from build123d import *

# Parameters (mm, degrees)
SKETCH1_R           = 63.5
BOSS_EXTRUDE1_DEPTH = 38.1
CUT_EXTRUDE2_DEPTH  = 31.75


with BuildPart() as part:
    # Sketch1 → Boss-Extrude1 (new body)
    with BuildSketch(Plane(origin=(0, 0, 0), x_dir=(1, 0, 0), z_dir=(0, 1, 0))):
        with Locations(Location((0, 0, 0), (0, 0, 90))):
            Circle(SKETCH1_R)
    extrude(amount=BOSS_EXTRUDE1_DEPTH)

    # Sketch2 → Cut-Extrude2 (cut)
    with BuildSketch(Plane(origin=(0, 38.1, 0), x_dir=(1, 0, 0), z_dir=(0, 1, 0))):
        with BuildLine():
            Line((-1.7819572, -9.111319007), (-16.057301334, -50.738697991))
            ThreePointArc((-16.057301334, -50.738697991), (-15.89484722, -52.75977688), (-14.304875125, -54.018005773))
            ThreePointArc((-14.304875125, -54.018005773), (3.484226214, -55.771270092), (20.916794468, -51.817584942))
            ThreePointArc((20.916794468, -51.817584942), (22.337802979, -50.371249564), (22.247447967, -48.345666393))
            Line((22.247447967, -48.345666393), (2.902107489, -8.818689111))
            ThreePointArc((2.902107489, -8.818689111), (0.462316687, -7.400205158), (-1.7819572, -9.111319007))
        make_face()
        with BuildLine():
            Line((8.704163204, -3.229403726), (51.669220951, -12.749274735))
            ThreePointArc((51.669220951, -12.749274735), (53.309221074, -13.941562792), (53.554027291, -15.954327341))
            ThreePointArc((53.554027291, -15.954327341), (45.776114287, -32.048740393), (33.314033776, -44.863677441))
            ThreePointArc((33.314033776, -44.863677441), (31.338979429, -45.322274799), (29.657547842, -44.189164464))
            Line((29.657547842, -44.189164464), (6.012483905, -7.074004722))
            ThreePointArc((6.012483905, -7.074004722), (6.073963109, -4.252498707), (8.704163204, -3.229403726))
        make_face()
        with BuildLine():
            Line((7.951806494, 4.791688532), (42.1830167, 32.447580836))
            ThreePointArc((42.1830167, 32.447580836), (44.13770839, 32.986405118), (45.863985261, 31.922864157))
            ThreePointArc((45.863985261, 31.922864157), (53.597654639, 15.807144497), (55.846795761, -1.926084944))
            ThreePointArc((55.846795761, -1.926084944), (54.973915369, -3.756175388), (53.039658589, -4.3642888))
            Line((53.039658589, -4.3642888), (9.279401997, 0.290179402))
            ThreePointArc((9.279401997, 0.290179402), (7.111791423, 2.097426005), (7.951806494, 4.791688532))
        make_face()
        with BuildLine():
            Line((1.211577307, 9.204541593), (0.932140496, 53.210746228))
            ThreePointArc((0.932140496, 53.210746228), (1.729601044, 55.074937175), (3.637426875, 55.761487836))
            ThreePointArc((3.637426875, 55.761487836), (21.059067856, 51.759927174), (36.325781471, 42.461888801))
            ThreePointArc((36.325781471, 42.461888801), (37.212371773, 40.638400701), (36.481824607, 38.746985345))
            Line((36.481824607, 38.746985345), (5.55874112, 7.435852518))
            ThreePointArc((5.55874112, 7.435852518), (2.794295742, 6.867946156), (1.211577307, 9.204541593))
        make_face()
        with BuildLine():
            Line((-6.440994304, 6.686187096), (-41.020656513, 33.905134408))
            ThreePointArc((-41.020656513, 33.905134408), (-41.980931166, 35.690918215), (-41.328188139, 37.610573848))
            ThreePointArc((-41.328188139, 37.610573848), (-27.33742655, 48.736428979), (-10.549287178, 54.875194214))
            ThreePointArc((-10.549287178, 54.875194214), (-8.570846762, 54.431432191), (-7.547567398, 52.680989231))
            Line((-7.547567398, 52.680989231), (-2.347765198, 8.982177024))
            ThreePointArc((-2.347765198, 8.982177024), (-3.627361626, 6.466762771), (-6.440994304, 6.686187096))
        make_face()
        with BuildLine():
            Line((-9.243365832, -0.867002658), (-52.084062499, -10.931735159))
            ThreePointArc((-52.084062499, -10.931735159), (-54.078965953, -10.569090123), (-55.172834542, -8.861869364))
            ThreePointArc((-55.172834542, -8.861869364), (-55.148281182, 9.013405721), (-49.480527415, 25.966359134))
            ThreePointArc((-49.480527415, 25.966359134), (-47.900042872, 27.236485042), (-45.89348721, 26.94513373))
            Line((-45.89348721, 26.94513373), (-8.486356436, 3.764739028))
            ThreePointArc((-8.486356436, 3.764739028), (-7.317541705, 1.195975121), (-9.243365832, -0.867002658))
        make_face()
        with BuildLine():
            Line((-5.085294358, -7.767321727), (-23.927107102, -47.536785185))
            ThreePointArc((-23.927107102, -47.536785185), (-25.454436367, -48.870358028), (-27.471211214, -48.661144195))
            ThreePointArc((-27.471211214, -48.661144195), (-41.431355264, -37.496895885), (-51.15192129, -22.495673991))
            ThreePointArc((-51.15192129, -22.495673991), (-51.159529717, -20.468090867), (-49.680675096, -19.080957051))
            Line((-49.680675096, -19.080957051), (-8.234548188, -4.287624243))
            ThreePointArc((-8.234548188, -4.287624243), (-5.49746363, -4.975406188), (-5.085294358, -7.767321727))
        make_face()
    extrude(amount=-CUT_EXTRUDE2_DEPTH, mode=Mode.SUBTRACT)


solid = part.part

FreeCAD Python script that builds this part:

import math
import FreeCAD as App
import Part
import Sketcher
Q = App.Units.Quantity

doc = App.newDocument("Part")
body = doc.addObject("PartDesign::Body", "Body")

# Sketch on XZ plane
sketch1 = doc.addObject("Sketcher::SketchObject", "Sketch")
body.addObject(sketch1)
sketch1.AttachmentSupport = (doc.XZ_Plane, [""])
sketch1.MapMode = "FlatFace"
sketch1.addGeometry(Part.Circle(App.Vector(0, 0, 0), App.Vector(0, 0, 1), 63.5), False)
sketch1.addConstraint([
    Sketcher.Constraint("Coincident", 0, 3, -1, 1),
    Sketcher.Constraint("Diameter", 0, Q("5 in")),
])
pad1 = doc.addObject("PartDesign::Pad", "Pad")
body.addObject(pad1)
pad1.Profile = sketch1
pad1.Length = Q("1.5 in")
pad1.Reversed = True

# Sketch on XZ plane
sketch2 = doc.addObject("Sketcher::SketchObject", "Sketch001")
body.addObject(sketch2)
sketch2.AttachmentSupport = (doc.XZ_Plane, [""])
sketch2.MapMode = "FlatFace"
sketch2.AttachmentOffset = App.Placement(App.Vector(0, 0, -1.5 * 25.4), App.Rotation())
sketch2.addGeometry([
    Part.LineSegment(App.Vector(-1.781957, 9.111319, 0), App.Vector(-16.057301, 50.738698, 0)),  # 0
    Part.ArcOfCircle(Part.Circle(App.Vector(-13.654654, 51.562642, 0), App.Vector(0, 0, 1), 2.54), math.radians(104.832419), math.radians(198.928462)),  # 1
    Part.ArcOfCircle(Part.Circle(App.Vector(0, 0, 0), App.Vector(0, 0, 1), 55.88), math.radians(68.017938), math.radians(104.832418)),  # 2
    Part.ArcOfCircle(Part.Circle(App.Vector(19.966031, 49.46224, 0), App.Vector(0, 0, 1), 2.54), math.radians(-26.078106), math.radians(68.017938)),  # 3
    Part.LineSegment(App.Vector(22.247448, 48.345666, 0), App.Vector(2.902107, 8.818689, 0)),  # 4
    Part.ArcOfCircle(Part.Circle(App.Vector(0.620691, 9.935263, 0), App.Vector(0, 0, 1), 2.54), math.radians(-161.071538), math.radians(-26.078106)),  # 5
    Part.LineSegment(App.Vector(51.669221, 12.749275, 0), App.Vector(8.704163, 3.229404, 0)),  # 6
    Part.ArcOfCircle(Part.Circle(App.Vector(8.154696, 5.70926, 0), App.Vector(0, 0, 1), 2.54), math.radians(147.499891), math.radians(282.493323)),  # 7
    Part.LineSegment(App.Vector(6.012484, 7.074005, 0), App.Vector(29.657548, 44.189164, 0)),  # 8
    Part.ArcOfCircle(Part.Circle(App.Vector(31.79976, 42.824419, 0), App.Vector(0, 0, 1), 2.54), math.radians(53.403847), math.radians(147.499891)),  # 9
    Part.ArcOfCircle(Part.Circle(App.Vector(0, 0, 0), App.Vector(0, 0, 1), 55.88), math.radians(16.589367), math.radians(53.403847)),  # 10
    Part.ArcOfCircle(Part.Circle(App.Vector(51.119753, 15.229131, 0), App.Vector(0, 0, 1), 2.54), math.radians(-77.506677), math.radians(16.589367)),  # 11
    Part.LineSegment(App.Vector(42.183017, -32.447581, 0), App.Vector(7.951806, -4.791689, 0)),  # 12
    Part.ArcOfCircle(Part.Circle(App.Vector(9.548048, -2.815933, 0), App.Vector(0, 0, 1), 2.54), math.radians(96.071319), math.radians(231.064751)),  # 13
    Part.LineSegment(App.Vector(9.279402, -0.290179, 0), App.Vector(53.039659, 4.364289, 0)),  # 14
    Part.ArcOfCircle(Part.Circle(App.Vector(53.308305, 1.838536, 0), App.Vector(0, 0, 1), 2.54), math.radians(1.975276), math.radians(96.071319)),  # 15
    Part.ArcOfCircle(Part.Circle(App.Vector(0, 0, 0), App.Vector(0, 0, 1), 55.88), math.radians(-34.839205), math.radians(1.975276)),  # 16
    Part.ArcOfCircle(Part.Circle(App.Vector(43.779259, -30.471825, 0), App.Vector(0, 0, 1), 2.54), math.radians(-128.935248), math.radians(-34.839205)),  # 17
    Part.LineSegment(App.Vector(0.93214, -53.210746, 0), App.Vector(1.211577, -9.204542, 0)),  # 18
    Part.ArcOfCircle(Part.Circle(App.Vector(3.751526, -9.22067, 0), App.Vector(0, 0, 1), 2.54), math.radians(44.642748), math.radians(179.63618)),  # 19
    Part.LineSegment(App.Vector(5.558741, -7.435853, 0), App.Vector(36.481825, -38.746985, 0)),  # 20
    Part.ArcOfCircle(Part.Circle(App.Vector(34.67461, -40.531803, 0), App.Vector(0, 0, 1), 2.54), math.radians(-49.453296), math.radians(44.642748)),  # 21
    Part.ArcOfCircle(Part.Circle(App.Vector(0, 0, 0), App.Vector(0, 0, 1), 55.88), math.radians(-86.267776), math.radians(-49.453296)),  # 22
    Part.ArcOfCircle(Part.Circle(App.Vector(3.472089, -53.226875, 0), App.Vector(0, 0, 1), 2.54), math.radians(179.63618), math.radians(273.732224)),  # 23
    Part.LineSegment(App.Vector(-41.020657, -33.905134, 0), App.Vector(-6.440994, -6.686187, 0)),  # 24
    Part.ArcOfCircle(Part.Circle(App.Vector(-4.869972, -8.682055, 0), App.Vector(0, 0, 1), 2.54), math.radians(-6.785823), math.radians(128.207609)),  # 25
    Part.LineSegment(App.Vector(-2.347765, -8.982177, 0), App.Vector(-7.547567, -52.680989, 0)),  # 26
    Part.ArcOfCircle(Part.Circle(App.Vector(-10.069774, -52.380867, 0), App.Vector(0, 0, 1), 2.54), math.radians(-100.881867), math.radians(-6.785823)),  # 27
    Part.ArcOfCircle(Part.Circle(App.Vector(0, 0, 0), App.Vector(0, 0, 1), 55.88), math.radians(-137.696348), math.radians(-100.881867)),  # 28
    Part.ArcOfCircle(Part.Circle(App.Vector(-39.449634, -35.901002, 0), App.Vector(0, 0, 1), 2.54), math.radians(128.207609), math.radians(222.303652)),  # 29
    Part.LineSegment(App.Vector(-52.084062, 10.931735, 0), App.Vector(-9.243366, 0.867003, 0)),  # 30
    Part.ArcOfCircle(Part.Circle(App.Vector(-9.824282, -1.605675, 0), App.Vector(0, 0, 1), 2.54), math.radians(-58.214395), math.radians(76.779037)),  # 31
    Part.LineSegment(App.Vector(-8.486356, -3.764739, 0), App.Vector(-45.893487, -26.945134, 0)),  # 32
    Part.ArcOfCircle(Part.Circle(App.Vector(-47.231413, -24.78607, 0), App.Vector(0, 0, 1), 2.54), math.radians(-152.310439), math.radians(-58.214395)),  # 33
    Part.ArcOfCircle(Part.Circle(App.Vector(0, 0, 0), App.Vector(0, 0, 1), 55.88), math.radians(170.875081), math.radians(207.689561)),  # 34
    Part.ArcOfCircle(Part.Circle(App.Vector(-52.664978, 8.459057, 0), App.Vector(0, 0, 1), 2.54), math.radians(76.779037), math.radians(170.875081)),  # 35
    Part.LineSegment(App.Vector(-23.927107, 47.536785, 0), App.Vector(-5.085294, 7.767322, 0)),  # 36
    Part.ArcOfCircle(Part.Circle(App.Vector(-7.380707, 6.679811, 0), App.Vector(0, 0, 1), 2.54), math.radians(-109.642966), math.radians(25.350466)),  # 37
    Part.LineSegment(App.Vector(-8.234548, 4.287624, 0), App.Vector(-49.680675, 19.080957, 0)),  # 38
    Part.ArcOfCircle(Part.Circle(App.Vector(-48.826834, 21.473143, 0), App.Vector(0, 0, 1), 2.54), math.radians(156.26099), math.radians(250.357034)),  # 39
    Part.ArcOfCircle(Part.Circle(App.Vector(0, 0, 0), App.Vector(0, 0, 1), 55.88), math.radians(119.44651), math.radians(156.26099)),  # 40
    Part.ArcOfCircle(Part.Circle(App.Vector(-26.22252, 46.449274, 0), App.Vector(0, 0, 1), 2.54), math.radians(25.350466), math.radians(119.44651)),  # 41
], False)
sketch2.addConstraint([
    Sketcher.Constraint("Coincident", 0, 2, 1, 2),
    Sketcher.Constraint("Coincident", 1, 1, 2, 2),
    Sketcher.Constraint("Coincident", 2, 1, 3, 2),
    Sketcher.Constraint("Coincident", 3, 1, 4, 1),
    Sketcher.Constraint("Coincident", 4, 2, 5, 2),
    Sketcher.Constraint("Coincident", 5, 1, 0, 1),
    Sketcher.Constraint("Coincident", 6, 2, 7, 2),
    Sketcher.Constraint("Coincident", 7, 1, 8, 1),
    Sketcher.Constraint("Coincident", 8, 2, 9, 2),
    Sketcher.Constraint("Coincident", 9, 1, 10, 2),
    Sketcher.Constraint("Coincident", 10, 1, 11, 2),
    Sketcher.Constraint("Coincident", 11, 1, 6, 1),
    Sketcher.Constraint("Coincident", 12, 2, 13, 2),
    Sketcher.Constraint("Coincident", 13, 1, 14, 1),
    Sketcher.Constraint("Coincident", 14, 2, 15, 2),
    Sketcher.Constraint("Coincident", 15, 1, 16, 2),
    Sketcher.Constraint("Coincident", 16, 1, 17, 2),
    Sketcher.Constraint("Coincident", 17, 1, 12, 1),
    Sketcher.Constraint("Coincident", 18, 2, 19, 2),
    Sketcher.Constraint("Coincident", 19, 1, 20, 1),
    Sketcher.Constraint("Coincident", 20, 2, 21, 2),
    Sketcher.Constraint("Coincident", 21, 1, 22, 2),
    Sketcher.Constraint("Coincident", 22, 1, 23, 2),
    Sketcher.Constraint("Coincident", 23, 1, 18, 1),
    Sketcher.Constraint("Coincident", 24, 2, 25, 2),
    Sketcher.Constraint("Coincident", 25, 1, 26, 1),
    Sketcher.Constraint("Coincident", 26, 2, 27, 2),
    Sketcher.Constraint("Coincident", 27, 1, 28, 2),
    Sketcher.Constraint("Coincident", 28, 1, 29, 2),
    Sketcher.Constraint("Coincident", 29, 1, 24, 1),
    Sketcher.Constraint("Coincident", 30, 2, 31, 2),
    Sketcher.Constraint("Coincident", 31, 1, 32, 1),
    Sketcher.Constraint("Coincident", 32, 2, 33, 2),
    Sketcher.Constraint("Coincident", 33, 1, 34, 2),
    Sketcher.Constraint("Coincident", 34, 1, 35, 2),
    Sketcher.Constraint("Coincident", 35, 1, 30, 1),
    Sketcher.Constraint("Coincident", 36, 2, 37, 2),
    Sketcher.Constraint("Coincident", 37, 1, 38, 1),
    Sketcher.Constraint("Coincident", 38, 2, 39, 2),
    Sketcher.Constraint("Coincident", 39, 1, 40, 2),
    Sketcher.Constraint("Coincident", 40, 1, 41, 2),
    Sketcher.Constraint("Coincident", 41, 1, 36, 1),
    Sketcher.Constraint("Coincident", 2, 3, -1, 1),
    Sketcher.Constraint("Coincident", 10, 3, -1, 1),
    Sketcher.Constraint("Coincident", 16, 3, -1, 1),
    Sketcher.Constraint("Coincident", 22, 3, -1, 1),
    Sketcher.Constraint("Coincident", 28, 3, -1, 1),
    Sketcher.Constraint("Coincident", 34, 3, -1, 1),
    Sketcher.Constraint("Coincident", 40, 3, -1, 1),
    Sketcher.Constraint("Radius", 1, Q("0.1 in")),
    Sketcher.Constraint("Radius", 2, Q("2.2 in")),
    Sketcher.Constraint("Radius", 3, Q("0.1 in")),
    Sketcher.Constraint("Radius", 5, Q("0.1 in")),
    Sketcher.Constraint("Radius", 7, Q("0.1 in")),
    Sketcher.Constraint("Radius", 9, Q("0.1 in")),
    Sketcher.Constraint("Radius", 10, Q("2.2 in")),
    Sketcher.Constraint("Radius", 11, Q("0.1 in")),
    Sketcher.Constraint("Radius", 13, Q("0.1 in")),
    Sketcher.Constraint("Radius", 15, Q("0.1 in")),
    Sketcher.Constraint("Radius", 16, Q("2.2 in")),
    Sketcher.Constraint("Radius", 17, Q("0.1 in")),
    Sketcher.Constraint("Radius", 19, Q("0.1 in")),
    Sketcher.Constraint("Radius", 21, Q("0.1 in")),
    Sketcher.Constraint("Radius", 22, Q("2.2 in")),
    Sketcher.Constraint("Radius", 23, Q("0.1 in")),
    Sketcher.Constraint("Radius", 25, Q("0.1 in")),
    Sketcher.Constraint("Radius", 27, Q("0.1 in")),
    Sketcher.Constraint("Radius", 28, Q("2.2 in")),
    Sketcher.Constraint("Radius", 29, Q("0.1 in")),
    Sketcher.Constraint("Radius", 31, Q("0.1 in")),
    Sketcher.Constraint("Radius", 33, Q("0.1 in")),
    Sketcher.Constraint("Radius", 34, Q("2.2 in")),
    Sketcher.Constraint("Radius", 35, Q("0.1 in")),
    Sketcher.Constraint("Radius", 37, Q("0.1 in")),
    Sketcher.Constraint("Radius", 39, Q("0.1 in")),
    Sketcher.Constraint("Radius", 40, Q("2.2 in")),
    Sketcher.Constraint("Radius", 41, Q("0.1 in")),
    Sketcher.Constraint("DistanceX", -1, 1, 18, 2, Q("0.0476999 in")),
    Sketcher.Constraint("DistanceY", -1, 1, 36, 2, Q("0.3058001 in")),
    Sketcher.Constraint("DistanceX", 0, 2, -1, 1, 16.057301),
    Sketcher.Constraint("DistanceX", -1, 1, 13, 1, 9.279402),
    Sketcher.Constraint("Distance", 0, 44.007092),
    Sketcher.Constraint("Distance", 4, 44.007092),
    Sketcher.Constraint("Distance", 6, 44.007092),
    Sketcher.Constraint("Distance", 8, 44.007092),
    Sketcher.Constraint("Distance", 12, 44.007092),
    Sketcher.Constraint("Distance", 14, 44.007092),
    Sketcher.Constraint("Distance", 18, 44.007092),
    Sketcher.Constraint("Distance", 20, 44.007092),
    Sketcher.Constraint("Distance", 24, 44.007092),
    Sketcher.Constraint("Distance", 26, 44.007092),
    Sketcher.Constraint("Distance", 30, 44.007092),
    Sketcher.Constraint("Distance", 32, 44.007092),
    Sketcher.Constraint("Distance", 36, 44.007092),
    Sketcher.Constraint("Distance", 38, 44.007092),
    Sketcher.Constraint("DistanceY", -1, 1, 1, 3, 51.562642),
    Sketcher.Constraint("DistanceX", -1, 1, 3, 3, 19.966031),
    Sketcher.Constraint("DistanceX", -1, 1, 5, 3, 0.620691),
    Sketcher.Constraint("DistanceY", -1, 1, 7, 3, 5.70926),
    Sketcher.Constraint("DistanceX", -1, 1, 9, 3, 31.79976),
    Sketcher.Constraint("DistanceY", -1, 1, 11, 3, 15.229131),
    Sketcher.Constraint("DistanceX", -1, 1, 13, 3, 9.548048),
    Sketcher.Constraint("DistanceX", -1, 1, 17, 3, 43.779259),
    Sketcher.Constraint("DistanceY", 19, 3, -1, 1, 9.22067),
    Sketcher.Constraint("DistanceX", -1, 1, 21, 3, 34.67461),
    Sketcher.Constraint("DistanceX", -1, 1, 23, 3, 3.472089),
    Sketcher.Constraint("DistanceX", 25, 3, -1, 1, 4.869972),
    Sketcher.Constraint("DistanceX", 31, 3, -1, 1, 9.824282),
    Sketcher.Constraint("DistanceY", 33, 3, -1, 1, 24.78607),
    Sketcher.Constraint("DistanceX", 35, 3, -1, 1, 52.664978),
    Sketcher.Constraint("DistanceY", -1, 1, 37, 3, 6.679811),
    Sketcher.Constraint("DistanceX", 41, 3, -1, 1, 26.22252),
    Sketcher.Constraint("DistanceY", -1, 1, 4, 2, 8.818689),
    Sketcher.Constraint("DistanceY", -1, 1, 5, 1, 9.111319),
    Sketcher.Constraint("DistanceX", -1, 1, 11, 1, 51.669221),
    Sketcher.Constraint("DistanceY", 12, 2, -1, 1, 4.791689),
    Sketcher.Constraint("DistanceY", 13, 1, -1, 1, 0.290179),
    Sketcher.Constraint("DistanceX", -1, 1, 14, 2, 53.039659),
    Sketcher.Constraint("DistanceY", 18, 2, -1, 1, 9.204542),
    Sketcher.Constraint("DistanceX", -1, 1, 19, 1, 5.558741),
    Sketcher.Constraint("DistanceX", -1, 1, 21, 1, 36.325781),
    Sketcher.Constraint("DistanceY", 26, 2, -1, 1, 52.680989),
    Sketcher.Constraint("DistanceX", 28, 1, -1, 1, 41.328188),
    Sketcher.Constraint("DistanceY", 31, 1, -1, 1, 3.764739),
    Sketcher.Constraint("DistanceY", 33, 1, -1, 1, 25.966359),
    Sketcher.Constraint("DistanceY", -1, 1, 34, 1, 8.861869),
    Sketcher.Constraint("DistanceX", 37, 1, -1, 1, 8.234548),
    Sketcher.Constraint("DistanceX", 39, 1, -1, 1, 51.151921),
    Sketcher.Constraint("DistanceX", 40, 1, -1, 1, 27.471211),
    Sketcher.Constraint("DistanceX", -1, 1, 7, 3, 8.154696),
    Sketcher.Constraint("DistanceY", 25, 3, -1, 1, 8.682055),
    Sketcher.Constraint("DistanceX", 27, 3, -1, 1, 10.069774),
    Sketcher.Constraint("DistanceX", 29, 3, -1, 1, 39.449634),
    Sketcher.Constraint("DistanceY", 31, 3, -1, 1, 1.605675),
    Sketcher.Constraint("DistanceX", 37, 3, -1, 1, 7.380707),
    Sketcher.Constraint("DistanceX", 39, 3, -1, 1, 48.826834),
    Sketcher.Constraint("DistanceX", 1, 1, -1, 1, 14.304875),
    Sketcher.Constraint("DistanceX", -1, 1, 2, 1, 20.916794),
    Sketcher.Constraint("DistanceX", -1, 1, 7, 1, 6.012484),
    Sketcher.Constraint("DistanceX", -1, 1, 9, 1, 33.314034),
    Sketcher.Constraint("DistanceX", -1, 1, 10, 1, 53.554027),
    Sketcher.Constraint("DistanceX", -1, 1, 15, 1, 55.846796),
    Sketcher.Constraint("DistanceX", -1, 1, 16, 1, 45.863985),
    Sketcher.Constraint("DistanceX", -1, 1, 22, 1, 3.637427),
    Sketcher.Constraint("DistanceX", 24, 2, -1, 1, 6.440994),
    Sketcher.Constraint("DistanceX", 27, 1, -1, 1, 10.549287),
    Sketcher.Constraint("DistanceX", 30, 2, -1, 1, 9.243366),
])
pocket1 = doc.addObject("PartDesign::Pocket", "Pocket")
body.addObject(pocket1)
pocket1.Profile = sketch2
pocket1.Length = Q("1.25 in")
pocket1.Reversed = True

doc.recompute()
